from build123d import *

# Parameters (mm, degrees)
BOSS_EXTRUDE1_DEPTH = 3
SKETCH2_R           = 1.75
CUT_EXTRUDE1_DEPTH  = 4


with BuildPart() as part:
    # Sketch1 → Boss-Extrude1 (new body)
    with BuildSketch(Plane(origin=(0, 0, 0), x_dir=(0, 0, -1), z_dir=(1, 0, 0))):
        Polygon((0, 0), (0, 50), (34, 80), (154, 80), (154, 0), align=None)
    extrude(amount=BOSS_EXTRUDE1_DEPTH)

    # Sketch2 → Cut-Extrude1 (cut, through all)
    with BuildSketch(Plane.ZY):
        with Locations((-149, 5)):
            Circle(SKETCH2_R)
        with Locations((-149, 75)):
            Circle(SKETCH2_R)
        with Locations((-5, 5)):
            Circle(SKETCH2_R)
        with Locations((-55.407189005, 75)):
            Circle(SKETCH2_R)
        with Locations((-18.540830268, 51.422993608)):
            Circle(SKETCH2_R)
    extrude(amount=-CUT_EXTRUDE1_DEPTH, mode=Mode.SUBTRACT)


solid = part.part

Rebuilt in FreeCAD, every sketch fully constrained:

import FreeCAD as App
import Part
import Sketcher

V = App.Vector

doc = App.newDocument("Part")
params = doc.addObject("Spreadsheet::Sheet", "Params")
for row, (alias, value) in enumerate([
    ("sketch1_width", "50 mm"),
    ("sketch1_width2", "80 mm"),
    ("sketch1_height", "154 mm"),
    ("sketch1_height2", "120 mm"),
    ("pad1_length", "3 mm"),
    ("sketch2_diameter", "3.5 mm"),
], start=1):
    params.set(f"A{row}", alias)
    params.set(f"B{row}", "=" + value)
    params.setAlias(f"B{row}", alias)

body = doc.addObject("PartDesign::Body", "Body")

sketch1 = body.newObject("Sketcher::SketchObject", "Sketch")
sketch1.AttachmentSupport = (doc.getObject("YZ_Plane"), [""])
sketch1.MapMode = "FlatFace"
sketch1.addGeometry([
    Part.LineSegment(V(50, 0, 0), V(0, 0, 0)),
    Part.LineSegment(V(0, 0, 0), V(0, -154, 0)),
    Part.LineSegment(V(0, -154, 0), V(80, -154, 0)),
    Part.LineSegment(V(80, -154, 0), V(80, -34, 0)),
    Part.LineSegment(V(80, -34, 0), V(50, 0, 0)),
], False)
sketch1.addConstraint([
    Sketcher.Constraint("Coincident", 0, 2, 1, 1),
    Sketcher.Constraint("Coincident", 1, 2, 2, 1),
    Sketcher.Constraint("Coincident", 2, 2, 3, 1),
    Sketcher.Constraint("Coincident", 3, 2, 4, 1),
    Sketcher.Constraint("Coincident", 4, 2, 0, 1),
    Sketcher.Constraint("Horizontal", 0),
    Sketcher.Constraint("Vertical", 1),
    Sketcher.Constraint("Horizontal", 2),
    Sketcher.Constraint("Vertical", 3),
    Sketcher.Constraint("Coincident", 0, 2, -1, 1),
    Sketcher.Constraint("DistanceX", 0, 2, 0, 1, 50.0),
    Sketcher.Constraint("DistanceX", 2, 1, 2, 2, 80.0),
    Sketcher.Constraint("DistanceY", 1, 2, 1, 1, 154.0),
    Sketcher.Constraint("DistanceY", 3, 1, 3, 2, 120.0),
])
sketch1.setExpression("Constraints[10]", "Params.sketch1_width")
sketch1.setExpression("Constraints[11]", "Params.sketch1_width2")
sketch1.setExpression("Constraints[12]", "Params.sketch1_height")
sketch1.setExpression("Constraints[13]", "Params.sketch1_height2")
pad1 = body.newObject("PartDesign::Pad", "Pad")
pad1.Profile = sketch1
pad1.setExpression("Length", "Params.pad1_length")

sketch2 = body.newObject("Sketcher::SketchObject", "Sketch001")
sketch2.AttachmentSupport = (doc.getObject("YZ_Plane"), [""])
sketch2.MapMode = "FlatFace"
sketch2.addGeometry([
    Part.Circle(V(5, -149, 0), V(0, 0, 1), 1.8),
    Part.Circle(V(75, -149, 0), V(0, 0, 1), 1.8),
    Part.Circle(V(5, -5, 0), V(0, 0, 1), 1.8),
    Part.Circle(V(75, -55.4, 0), V(0, 0, 1), 1.8),
    Part.Circle(V(51.4, -18.5, 0), V(0, 0, 1), 1.8),
], False)
sketch2.addConstraint([
    Sketcher.Constraint("Equal", 0, 1),
    Sketcher.Constraint("Equal", 1, 2),
    Sketcher.Constraint("Equal", 2, 3),
    Sketcher.Constraint("Equal", 3, 4),
    Sketcher.Constraint("Horizontal", 0, 3, 1, 3),
    Sketcher.Constraint("Vertical", 0, 3, 2, 3),
    Sketcher.Constraint("Vertical", 1, 3, 3, 3),
    Sketcher.Constraint("Diameter", 0, 3.5),
    Sketcher.Constraint("DistanceX", -1, 1, 0, 3, 5.0),
    Sketcher.Constraint("DistanceY", 0, 3, -1, 1, 149.0),
    Sketcher.Constraint("DistanceX", -1, 1, 1, 3, 75.0),
    Sketcher.Constraint("DistanceY", 2, 3, -1, 1, 5.0),
    Sketcher.Constraint("DistanceY", 3, 3, -1, 1, 55.407189),
    Sketcher.Constraint("DistanceY", 4, 3, -1, 1, 18.54083),
    Sketcher.Constraint("DistanceX", -1, 1, 4, 3, 51.422994),
])
sketch2.setExpression("Constraints[7]", "Params.sketch2_diameter")
pocket1 = body.newObject("PartDesign::Pocket", "Pocket")
pocket1.Profile = sketch2
pocket1.Type = "ThroughAll"
pocket1.Reversed = True

doc.recompute()
